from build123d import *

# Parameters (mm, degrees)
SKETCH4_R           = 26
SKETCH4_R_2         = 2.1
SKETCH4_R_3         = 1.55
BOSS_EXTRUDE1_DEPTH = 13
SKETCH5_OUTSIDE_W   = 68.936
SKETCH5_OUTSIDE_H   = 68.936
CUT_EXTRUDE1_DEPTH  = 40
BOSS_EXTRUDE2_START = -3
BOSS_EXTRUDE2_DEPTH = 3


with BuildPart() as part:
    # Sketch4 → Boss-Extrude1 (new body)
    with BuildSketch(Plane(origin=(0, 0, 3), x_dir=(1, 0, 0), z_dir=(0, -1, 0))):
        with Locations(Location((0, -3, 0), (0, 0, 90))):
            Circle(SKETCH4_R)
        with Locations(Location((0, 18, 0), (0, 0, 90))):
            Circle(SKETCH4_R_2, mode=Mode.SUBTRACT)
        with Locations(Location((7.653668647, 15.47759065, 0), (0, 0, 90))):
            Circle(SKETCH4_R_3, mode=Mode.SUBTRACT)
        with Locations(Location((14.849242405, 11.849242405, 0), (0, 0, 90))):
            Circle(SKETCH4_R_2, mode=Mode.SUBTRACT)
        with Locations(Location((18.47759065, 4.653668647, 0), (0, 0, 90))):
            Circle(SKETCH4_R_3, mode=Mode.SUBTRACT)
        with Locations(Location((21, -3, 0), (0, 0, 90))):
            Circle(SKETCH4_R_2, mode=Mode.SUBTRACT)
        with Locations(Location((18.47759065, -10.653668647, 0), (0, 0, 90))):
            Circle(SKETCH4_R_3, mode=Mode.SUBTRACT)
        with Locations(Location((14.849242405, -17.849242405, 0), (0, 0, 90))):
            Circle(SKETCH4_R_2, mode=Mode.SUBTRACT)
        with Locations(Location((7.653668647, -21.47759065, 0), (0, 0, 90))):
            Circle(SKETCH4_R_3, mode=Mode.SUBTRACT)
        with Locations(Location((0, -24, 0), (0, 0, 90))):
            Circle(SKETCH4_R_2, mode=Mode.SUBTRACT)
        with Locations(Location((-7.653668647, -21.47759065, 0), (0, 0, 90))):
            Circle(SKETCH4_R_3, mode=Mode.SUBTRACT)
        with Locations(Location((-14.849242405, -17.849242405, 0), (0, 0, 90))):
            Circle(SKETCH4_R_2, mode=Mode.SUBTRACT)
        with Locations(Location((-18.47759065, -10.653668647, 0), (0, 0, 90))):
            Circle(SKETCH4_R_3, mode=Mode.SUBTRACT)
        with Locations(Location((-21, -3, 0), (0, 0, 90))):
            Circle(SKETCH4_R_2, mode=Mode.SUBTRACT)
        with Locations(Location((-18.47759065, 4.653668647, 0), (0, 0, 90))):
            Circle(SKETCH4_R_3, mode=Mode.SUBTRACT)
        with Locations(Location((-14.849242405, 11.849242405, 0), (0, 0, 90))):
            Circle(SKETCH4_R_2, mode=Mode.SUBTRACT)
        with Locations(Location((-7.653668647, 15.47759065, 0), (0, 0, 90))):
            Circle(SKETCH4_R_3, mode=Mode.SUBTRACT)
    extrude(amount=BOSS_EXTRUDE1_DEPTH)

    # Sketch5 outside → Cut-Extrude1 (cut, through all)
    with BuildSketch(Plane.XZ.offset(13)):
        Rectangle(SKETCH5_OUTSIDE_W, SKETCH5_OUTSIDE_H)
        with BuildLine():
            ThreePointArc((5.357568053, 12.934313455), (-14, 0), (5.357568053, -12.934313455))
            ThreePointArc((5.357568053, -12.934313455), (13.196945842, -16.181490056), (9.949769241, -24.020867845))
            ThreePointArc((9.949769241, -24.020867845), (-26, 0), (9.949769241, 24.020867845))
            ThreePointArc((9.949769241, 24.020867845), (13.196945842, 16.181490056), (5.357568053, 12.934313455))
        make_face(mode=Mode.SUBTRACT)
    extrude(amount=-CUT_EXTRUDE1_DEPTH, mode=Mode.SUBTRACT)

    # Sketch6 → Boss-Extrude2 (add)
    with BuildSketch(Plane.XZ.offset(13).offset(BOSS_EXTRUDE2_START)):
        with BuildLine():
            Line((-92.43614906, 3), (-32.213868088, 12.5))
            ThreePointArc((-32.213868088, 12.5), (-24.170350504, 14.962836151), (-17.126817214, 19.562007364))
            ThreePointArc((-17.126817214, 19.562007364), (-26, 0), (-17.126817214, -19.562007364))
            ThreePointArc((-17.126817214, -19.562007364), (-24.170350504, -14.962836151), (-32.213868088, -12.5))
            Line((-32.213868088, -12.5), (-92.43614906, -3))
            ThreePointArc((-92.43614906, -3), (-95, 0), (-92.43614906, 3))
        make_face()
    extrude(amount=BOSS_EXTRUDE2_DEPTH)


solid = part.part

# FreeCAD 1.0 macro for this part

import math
import FreeCAD as App
import Part
import Sketcher


def add_polygon(sketch, points):
    """Adds a closed chain of lines whose ends are joined by coincident constraints."""
    first, n = sketch.GeometryCount, len(points)
    for a, b in zip(points, points[1:] + points[:1]):
        sketch.addGeometry(Part.LineSegment(App.Vector(*a, 0), App.Vector(*b, 0)), False)
    for i in range(n):
        sketch.addConstraint(Sketcher.Constraint("Coincident", first + i, 2, first + (i + 1) % n, 1))

doc = App.newDocument("Part")
body = doc.addObject("PartDesign::Body", "Body")

# Sketch on XZ plane
sketch1 = body.newObject("Sketcher::SketchObject", "Sketch")
sketch1.AttachmentSupport = (doc.getObject("XZ_Plane"), [""])
sketch1.MapMode = "FlatFace"
sketch1.addGeometry(Part.Circle(App.Vector(0, 0, 0), App.Vector(0, 0, 1), 26), False)
sketch1.addGeometry(Part.Circle(App.Vector(14.8, -14.8, 0), App.Vector(0, 0, 1), 2.1), False)
sketch1.addGeometry(Part.Circle(App.Vector(18.5, -7.7, 0), App.Vector(0, 0, 1), 1.6), False)
sketch1.addGeometry(Part.Circle(App.Vector(7.7, -18.5, 0), App.Vector(0, 0, 1), 1.6), False)
sketch1.addGeometry(Part.Circle(App.Vector(0, -21, 0), App.Vector(0, 0, 1), 2.1), False)
sketch1.addGeometry(Part.Circle(App.Vector(21, 0, 0), App.Vector(0, 0, 1), 2.1), False)
sketch1.addGeometry(Part.Circle(App.Vector(18.5, 7.7, 0), App.Vector(0, 0, 1), 1.6), False)
sketch1.addGeometry(Part.Circle(App.Vector(14.8, 14.8, 0), App.Vector(0, 0, 1), 2.1), False)
sketch1.addGeometry(Part.Circle(App.Vector(7.7, 18.5, 0), App.Vector(0, 0, 1), 1.6), False)
sketch1.addGeometry(Part.Circle(App.Vector(-7.7, -18.5, 0), App.Vector(0, 0, 1), 1.6), False)
sketch1.addGeometry(Part.Circle(App.Vector(-14.8, -14.8, 0), App.Vector(0, 0, 1), 2.1), False)
sketch1.addGeometry(Part.Circle(App.Vector(-18.5, -7.7, 0), App.Vector(0, 0, 1), 1.6), False)
sketch1.addGeometry(Part.Circle(App.Vector(-21, 0, 0), App.Vector(0, 0, 1), 2.1), False)
sketch1.addGeometry(Part.Circle(App.Vector(0, 21, 0), App.Vector(0, 0, 1), 2.1), False)
sketch1.addGeometry(Part.Circle(App.Vector(-7.7, 18.5, 0), App.Vector(0, 0, 1), 1.6), False)
sketch1.addGeometry(Part.Circle(App.Vector(-18.5, 7.7, 0), App.Vector(0, 0, 1), 1.6), False)
sketch1.addGeometry(Part.Circle(App.Vector(-14.8, 14.8, 0), App.Vector(0, 0, 1), 2.1), False)
sketch1.addConstraint(Sketcher.Constraint("Coincident", 0, 3, -1, 1))
sketch1.addConstraint(Sketcher.Constraint("Equal", 2, 3))
sketch1.addConstraint(Sketcher.Constraint("Equal", 1, 4))
sketch1.addConstraint(Sketcher.Constraint("Equal", 4, 5))
sketch1.addConstraint(Sketcher.Constraint("Equal", 3, 6))
sketch1.addConstraint(Sketcher.Constraint("Equal", 5, 7))
sketch1.addConstraint(Sketcher.Constraint("Equal", 6, 8))
sketch1.addConstraint(Sketcher.Constraint("Equal", 8, 9))
sketch1.addConstraint(Sketcher.Constraint("Equal", 7, 10))
sketch1.addConstraint(Sketcher.Constraint("Equal", 9, 11))
sketch1.addConstraint(Sketcher.Constraint("Equal", 10, 12))
sketch1.addConstraint(Sketcher.Constraint("Equal", 12, 13))
sketch1.addConstraint(Sketcher.Constraint("Equal", 11, 14))
sketch1.addConstraint(Sketcher.Constraint("Equal", 14, 15))
sketch1.addConstraint(Sketcher.Constraint("Equal", 13, 16))
sketch1.addConstraint(Sketcher.Constraint("Symmetric", 8, 3, 9, 3, -1, 1))
sketch1.addConstraint(Sketcher.Constraint("Symmetric", 7, 3, 10, 3, -1, 1))
sketch1.addConstraint(Sketcher.Constraint("Symmetric", 6, 3, 11, 3, -1, 1))
sketch1.addConstraint(Sketcher.Constraint("Symmetric", 5, 3, 12, 3, -1, 1))
sketch1.addConstraint(Sketcher.Constraint("Symmetric", 4, 3, 13, 3, -1, 1))
sketch1.addConstraint(Sketcher.Constraint("Symmetric", 3, 3, 14, 3, -1, 1))
sketch1.addConstraint(Sketcher.Constraint("Symmetric", 2, 3, 15, 3, -1, 1))
sketch1.addConstraint(Sketcher.Constraint("Symmetric", 1, 3, 16, 3, -1, 1))
sketch1.addConstraint(Sketcher.Constraint("Symmetric", 3, 3, 9, 3, -2))
sketch1.addConstraint(Sketcher.Constraint("Symmetric", 1, 3, 10, 3, -2))
sketch1.addConstraint(Sketcher.Constraint("Symmetric", 2, 3, 11, 3, -2))
sketch1.addConstraint(Sketcher.Constraint("PointOnObject", 4, 3, -2))
sketch1.addConstraint(Sketcher.Constraint("PointOnObject", 5, 3, -1))
sketch1.addConstraint(Sketcher.Constraint("Diameter", 0, 52.0))
sketch1.addConstraint(Sketcher.Constraint("Diameter", 1, 4.2))
sketch1.addConstraint(Sketcher.Constraint("Diameter", 2, 3.1))
sketch1.addConstraint(Sketcher.Constraint("DistanceY", 4, 3, -1, 1, 21.0))
sketch1.addConstraint(Sketcher.Constraint("DistanceX", -1, 1, 5, 3, 21.0))
sketch1.addConstraint(Sketcher.Constraint("DistanceX", -1, 1, 2, 3, 18.477591))
sketch1.addConstraint(Sketcher.Constraint("DistanceY", 2, 3, -1, 1, 7.653669))
sketch1.addConstraint(Sketcher.Constraint("DistanceX", -1, 1, 3, 3, 7.653669))
sketch1.addConstraint(Sketcher.Constraint("DistanceY", 3, 3, -1, 1, 18.477591))
sketch1.addConstraint(Sketcher.Constraint("DistanceX", 1, 3, 2, 3, 3.628348))
sketch1.addConstraint(Sketcher.Constraint("DistanceY", 3, 3, 1, 3, 3.628348))
pad1 = body.newObject("PartDesign::Pad", "Pad")
pad1.Profile = sketch1
pad1.Length = 13

# Sketch on XZ plane
sketch2 = body.newObject("Sketcher::SketchObject", "Sketch001")
sketch2.AttachmentSupport = (doc.getObject("XZ_Plane"), [""])
sketch2.MapMode = "FlatFace"
sketch2.AttachmentOffset = App.Placement(App.Vector(0, 0, 13), App.Rotation())
add_polygon(sketch2, [(-34, 34), (-34, -34), (34, -34), (34, 34)])  # lines 0-3
sketch2.addGeometry(Part.ArcOfCircle(Part.Circle(App.Vector(8, 18, 0), App.Vector(0, 0, 1), 6), math.radians(-112), math.radians(68)), False)  # 4
sketch2.addGeometry(Part.ArcOfCircle(Part.Circle(App.Vector(0, 0, 0), App.Vector(0, 0, 1), 14), math.radians(68), math.radians(292)), False)  # 5
sketch2.addGeometry(Part.ArcOfCircle(Part.Circle(App.Vector(8, -18, 0), App.Vector(0, 0, 1), 6), math.radians(-68), math.radians(112)), False)  # 6
sketch2.addGeometry(Part.ArcOfCircle(Part.Circle(App.Vector(0, 0, 0), App.Vector(0, 0, 1), 26), math.radians(68), math.radians(292)), False)  # 7
sketch2.addConstraint(Sketcher.Constraint("Tangent", 4, 1, 5, 1))
sketch2.addConstraint(Sketcher.Constraint("Tangent", 5, 2, 6, 2))
sketch2.addConstraint(Sketcher.Constraint("Tangent", 6, 1, 7, 2))
sketch2.addConstraint(Sketcher.Constraint("Tangent", 7, 1, 4, 2))
sketch2.addConstraint(Sketcher.Constraint("Vertical", 0))
sketch2.addConstraint(Sketcher.Constraint("Horizontal", 1))
sketch2.addConstraint(Sketcher.Constraint("Vertical", 2))
sketch2.addConstraint(Sketcher.Constraint("Horizontal", 3))
sketch2.addConstraint(Sketcher.Constraint("Coincident", 5, 3, -1, 1))
sketch2.addConstraint(Sketcher.Constraint("Coincident", 7, 3, -1, 1))
sketch2.addConstraint(Sketcher.Constraint("Symmetric", 0, 2, 2, 2, -1, 1))
sketch2.addConstraint(Sketcher.Constraint("Vertical", 4, 3, 6, 3))
sketch2.addConstraint(Sketcher.Constraint("Equal", 3, 0))
sketch2.addConstraint(Sketcher.Constraint("Radius", 4, 6.0))
sketch2.addConstraint(Sketcher.Constraint("Radius", 5, 14.0))
sketch2.addConstraint(Sketcher.Constraint("DistanceX", 1, 1, 1, 2, 68.936))
sketch2.addConstraint(Sketcher.Constraint("DistanceX", 4, 1, 4, 3, 2.296101))
pocket1 = body.newObject("PartDesign::Pocket", "Pocket")
pocket1.Profile = sketch2
pocket1.Type = "ThroughAll"

# Sketch on XZ plane
sketch3 = body.newObject("Sketcher::SketchObject", "Sketch002")
sketch3.AttachmentSupport = (doc.getObject("XZ_Plane"), [""])
sketch3.MapMode = "FlatFace"
sketch3.AttachmentOffset = App.Placement(App.Vector(0, 0, 10), App.Rotation())
sketch3.addGeometry(Part.LineSegment(App.Vector(-32.213868, 12.5, 0), App.Vector(-92.436149, 3, 0)), False)
sketch3.addGeometry(Part.ArcOfCircle(Part.Circle(App.Vector(-91.962902, 0, 0), App.Vector(0, 0, 1), 3.037098), math.radians(98.964475), math.radians(261.035525)), False)
sketch3.addGeometry(Part.LineSegment(App.Vector(-92.436149, -3, 0), App.Vector(-32.213868, -12.5, 0)), False)
sketch3.addGeometry(Part.ArcOfCircle(Part.Circle(App.Vector(-36.888529, -42.133554, 0), App.Vector(0, 0, 1), 30), math.radians(48.79739), math.radians(81.035525)), False)
sketch3.addGeometry(Part.ArcOfCircle(Part.Circle(App.Vector(0, 0, 0), App.Vector(0, 0, 1), 26), math.radians(131.20261), math.radians(228.79739)), False)
sketch3.addGeometry(Part.ArcOfCircle(Part.Circle(App.Vector(-36.888529, 42.133554, 0), App.Vector(0, 0, 1), 30), math.radians(-81.035525), math.radians(-48.79739)), False)
sketch3.addConstraint(Sketcher.Constraint("Coincident", 0, 2, 1, 1))
sketch3.addConstraint(Sketcher.Constraint("Coincident", 1, 2, 2, 1))
sketch3.addConstraint(Sketcher.Constraint("Coincident", 2, 2, 3, 2))
sketch3.addConstraint(Sketcher.Constraint("Coincident", 3, 1, 4, 2))
sketch3.addConstraint(Sketcher.Constraint("Coincident", 4, 1, 5, 2))
sketch3.addConstraint(Sketcher.Constraint("Coincident", 5, 1, 0, 1))
sketch3.addConstraint(Sketcher.Constraint("Coincident", 4, 3, -1, 1))
sketch3.addConstraint(Sketcher.Constraint("PointOnObject", 1, 3, -1))
sketch3.addConstraint(Sketcher.Constraint("Radius", 3, 30.0))
sketch3.addConstraint(Sketcher.Constraint("Radius", 4, 26.0))
sketch3.addConstraint(Sketcher.Constraint("Radius", 5, 30.0))
sketch3.addConstraint(Sketcher.Constraint("DistanceY", -1, 1, 0, 2, 3.0))
sketch3.addConstraint(Sketcher.Constraint("DistanceY", 1, 2, -1, 1, 3.0))
sketch3.addConstraint(Sketcher.Constraint("DistanceY", 2, 2, 5, 1, 25.0))
sketch3.addConstraint(Sketcher.Constraint("DistanceY", 2, 2, -1, 1, 12.5))
sketch3.addConstraint(Sketcher.Constraint("Radius", 1, 3.037098))
sketch3.addConstraint(Sketcher.Constraint("DistanceX", 3, 3, -1, 1, 36.888529))
sketch3.addConstraint(Sketcher.Constraint("DistanceX", 5, 3, -1, 1, 36.888529))
sketch3.addConstraint(Sketcher.Constraint("DistanceX", 0, 2, -1, 1, 92.436149))
sketch3.addConstraint(Sketcher.Constraint("DistanceX", 2, 2, 3, 1, 15.087051))
sketch3.addConstraint(Sketcher.Constraint("DistanceX", 2, 2, 4, 1, 15.087051))
pad2 = body.newObject("PartDesign::Pad", "Pad001")
pad2.Profile = sketch3
pad2.Length = 3

doc.recompute()
